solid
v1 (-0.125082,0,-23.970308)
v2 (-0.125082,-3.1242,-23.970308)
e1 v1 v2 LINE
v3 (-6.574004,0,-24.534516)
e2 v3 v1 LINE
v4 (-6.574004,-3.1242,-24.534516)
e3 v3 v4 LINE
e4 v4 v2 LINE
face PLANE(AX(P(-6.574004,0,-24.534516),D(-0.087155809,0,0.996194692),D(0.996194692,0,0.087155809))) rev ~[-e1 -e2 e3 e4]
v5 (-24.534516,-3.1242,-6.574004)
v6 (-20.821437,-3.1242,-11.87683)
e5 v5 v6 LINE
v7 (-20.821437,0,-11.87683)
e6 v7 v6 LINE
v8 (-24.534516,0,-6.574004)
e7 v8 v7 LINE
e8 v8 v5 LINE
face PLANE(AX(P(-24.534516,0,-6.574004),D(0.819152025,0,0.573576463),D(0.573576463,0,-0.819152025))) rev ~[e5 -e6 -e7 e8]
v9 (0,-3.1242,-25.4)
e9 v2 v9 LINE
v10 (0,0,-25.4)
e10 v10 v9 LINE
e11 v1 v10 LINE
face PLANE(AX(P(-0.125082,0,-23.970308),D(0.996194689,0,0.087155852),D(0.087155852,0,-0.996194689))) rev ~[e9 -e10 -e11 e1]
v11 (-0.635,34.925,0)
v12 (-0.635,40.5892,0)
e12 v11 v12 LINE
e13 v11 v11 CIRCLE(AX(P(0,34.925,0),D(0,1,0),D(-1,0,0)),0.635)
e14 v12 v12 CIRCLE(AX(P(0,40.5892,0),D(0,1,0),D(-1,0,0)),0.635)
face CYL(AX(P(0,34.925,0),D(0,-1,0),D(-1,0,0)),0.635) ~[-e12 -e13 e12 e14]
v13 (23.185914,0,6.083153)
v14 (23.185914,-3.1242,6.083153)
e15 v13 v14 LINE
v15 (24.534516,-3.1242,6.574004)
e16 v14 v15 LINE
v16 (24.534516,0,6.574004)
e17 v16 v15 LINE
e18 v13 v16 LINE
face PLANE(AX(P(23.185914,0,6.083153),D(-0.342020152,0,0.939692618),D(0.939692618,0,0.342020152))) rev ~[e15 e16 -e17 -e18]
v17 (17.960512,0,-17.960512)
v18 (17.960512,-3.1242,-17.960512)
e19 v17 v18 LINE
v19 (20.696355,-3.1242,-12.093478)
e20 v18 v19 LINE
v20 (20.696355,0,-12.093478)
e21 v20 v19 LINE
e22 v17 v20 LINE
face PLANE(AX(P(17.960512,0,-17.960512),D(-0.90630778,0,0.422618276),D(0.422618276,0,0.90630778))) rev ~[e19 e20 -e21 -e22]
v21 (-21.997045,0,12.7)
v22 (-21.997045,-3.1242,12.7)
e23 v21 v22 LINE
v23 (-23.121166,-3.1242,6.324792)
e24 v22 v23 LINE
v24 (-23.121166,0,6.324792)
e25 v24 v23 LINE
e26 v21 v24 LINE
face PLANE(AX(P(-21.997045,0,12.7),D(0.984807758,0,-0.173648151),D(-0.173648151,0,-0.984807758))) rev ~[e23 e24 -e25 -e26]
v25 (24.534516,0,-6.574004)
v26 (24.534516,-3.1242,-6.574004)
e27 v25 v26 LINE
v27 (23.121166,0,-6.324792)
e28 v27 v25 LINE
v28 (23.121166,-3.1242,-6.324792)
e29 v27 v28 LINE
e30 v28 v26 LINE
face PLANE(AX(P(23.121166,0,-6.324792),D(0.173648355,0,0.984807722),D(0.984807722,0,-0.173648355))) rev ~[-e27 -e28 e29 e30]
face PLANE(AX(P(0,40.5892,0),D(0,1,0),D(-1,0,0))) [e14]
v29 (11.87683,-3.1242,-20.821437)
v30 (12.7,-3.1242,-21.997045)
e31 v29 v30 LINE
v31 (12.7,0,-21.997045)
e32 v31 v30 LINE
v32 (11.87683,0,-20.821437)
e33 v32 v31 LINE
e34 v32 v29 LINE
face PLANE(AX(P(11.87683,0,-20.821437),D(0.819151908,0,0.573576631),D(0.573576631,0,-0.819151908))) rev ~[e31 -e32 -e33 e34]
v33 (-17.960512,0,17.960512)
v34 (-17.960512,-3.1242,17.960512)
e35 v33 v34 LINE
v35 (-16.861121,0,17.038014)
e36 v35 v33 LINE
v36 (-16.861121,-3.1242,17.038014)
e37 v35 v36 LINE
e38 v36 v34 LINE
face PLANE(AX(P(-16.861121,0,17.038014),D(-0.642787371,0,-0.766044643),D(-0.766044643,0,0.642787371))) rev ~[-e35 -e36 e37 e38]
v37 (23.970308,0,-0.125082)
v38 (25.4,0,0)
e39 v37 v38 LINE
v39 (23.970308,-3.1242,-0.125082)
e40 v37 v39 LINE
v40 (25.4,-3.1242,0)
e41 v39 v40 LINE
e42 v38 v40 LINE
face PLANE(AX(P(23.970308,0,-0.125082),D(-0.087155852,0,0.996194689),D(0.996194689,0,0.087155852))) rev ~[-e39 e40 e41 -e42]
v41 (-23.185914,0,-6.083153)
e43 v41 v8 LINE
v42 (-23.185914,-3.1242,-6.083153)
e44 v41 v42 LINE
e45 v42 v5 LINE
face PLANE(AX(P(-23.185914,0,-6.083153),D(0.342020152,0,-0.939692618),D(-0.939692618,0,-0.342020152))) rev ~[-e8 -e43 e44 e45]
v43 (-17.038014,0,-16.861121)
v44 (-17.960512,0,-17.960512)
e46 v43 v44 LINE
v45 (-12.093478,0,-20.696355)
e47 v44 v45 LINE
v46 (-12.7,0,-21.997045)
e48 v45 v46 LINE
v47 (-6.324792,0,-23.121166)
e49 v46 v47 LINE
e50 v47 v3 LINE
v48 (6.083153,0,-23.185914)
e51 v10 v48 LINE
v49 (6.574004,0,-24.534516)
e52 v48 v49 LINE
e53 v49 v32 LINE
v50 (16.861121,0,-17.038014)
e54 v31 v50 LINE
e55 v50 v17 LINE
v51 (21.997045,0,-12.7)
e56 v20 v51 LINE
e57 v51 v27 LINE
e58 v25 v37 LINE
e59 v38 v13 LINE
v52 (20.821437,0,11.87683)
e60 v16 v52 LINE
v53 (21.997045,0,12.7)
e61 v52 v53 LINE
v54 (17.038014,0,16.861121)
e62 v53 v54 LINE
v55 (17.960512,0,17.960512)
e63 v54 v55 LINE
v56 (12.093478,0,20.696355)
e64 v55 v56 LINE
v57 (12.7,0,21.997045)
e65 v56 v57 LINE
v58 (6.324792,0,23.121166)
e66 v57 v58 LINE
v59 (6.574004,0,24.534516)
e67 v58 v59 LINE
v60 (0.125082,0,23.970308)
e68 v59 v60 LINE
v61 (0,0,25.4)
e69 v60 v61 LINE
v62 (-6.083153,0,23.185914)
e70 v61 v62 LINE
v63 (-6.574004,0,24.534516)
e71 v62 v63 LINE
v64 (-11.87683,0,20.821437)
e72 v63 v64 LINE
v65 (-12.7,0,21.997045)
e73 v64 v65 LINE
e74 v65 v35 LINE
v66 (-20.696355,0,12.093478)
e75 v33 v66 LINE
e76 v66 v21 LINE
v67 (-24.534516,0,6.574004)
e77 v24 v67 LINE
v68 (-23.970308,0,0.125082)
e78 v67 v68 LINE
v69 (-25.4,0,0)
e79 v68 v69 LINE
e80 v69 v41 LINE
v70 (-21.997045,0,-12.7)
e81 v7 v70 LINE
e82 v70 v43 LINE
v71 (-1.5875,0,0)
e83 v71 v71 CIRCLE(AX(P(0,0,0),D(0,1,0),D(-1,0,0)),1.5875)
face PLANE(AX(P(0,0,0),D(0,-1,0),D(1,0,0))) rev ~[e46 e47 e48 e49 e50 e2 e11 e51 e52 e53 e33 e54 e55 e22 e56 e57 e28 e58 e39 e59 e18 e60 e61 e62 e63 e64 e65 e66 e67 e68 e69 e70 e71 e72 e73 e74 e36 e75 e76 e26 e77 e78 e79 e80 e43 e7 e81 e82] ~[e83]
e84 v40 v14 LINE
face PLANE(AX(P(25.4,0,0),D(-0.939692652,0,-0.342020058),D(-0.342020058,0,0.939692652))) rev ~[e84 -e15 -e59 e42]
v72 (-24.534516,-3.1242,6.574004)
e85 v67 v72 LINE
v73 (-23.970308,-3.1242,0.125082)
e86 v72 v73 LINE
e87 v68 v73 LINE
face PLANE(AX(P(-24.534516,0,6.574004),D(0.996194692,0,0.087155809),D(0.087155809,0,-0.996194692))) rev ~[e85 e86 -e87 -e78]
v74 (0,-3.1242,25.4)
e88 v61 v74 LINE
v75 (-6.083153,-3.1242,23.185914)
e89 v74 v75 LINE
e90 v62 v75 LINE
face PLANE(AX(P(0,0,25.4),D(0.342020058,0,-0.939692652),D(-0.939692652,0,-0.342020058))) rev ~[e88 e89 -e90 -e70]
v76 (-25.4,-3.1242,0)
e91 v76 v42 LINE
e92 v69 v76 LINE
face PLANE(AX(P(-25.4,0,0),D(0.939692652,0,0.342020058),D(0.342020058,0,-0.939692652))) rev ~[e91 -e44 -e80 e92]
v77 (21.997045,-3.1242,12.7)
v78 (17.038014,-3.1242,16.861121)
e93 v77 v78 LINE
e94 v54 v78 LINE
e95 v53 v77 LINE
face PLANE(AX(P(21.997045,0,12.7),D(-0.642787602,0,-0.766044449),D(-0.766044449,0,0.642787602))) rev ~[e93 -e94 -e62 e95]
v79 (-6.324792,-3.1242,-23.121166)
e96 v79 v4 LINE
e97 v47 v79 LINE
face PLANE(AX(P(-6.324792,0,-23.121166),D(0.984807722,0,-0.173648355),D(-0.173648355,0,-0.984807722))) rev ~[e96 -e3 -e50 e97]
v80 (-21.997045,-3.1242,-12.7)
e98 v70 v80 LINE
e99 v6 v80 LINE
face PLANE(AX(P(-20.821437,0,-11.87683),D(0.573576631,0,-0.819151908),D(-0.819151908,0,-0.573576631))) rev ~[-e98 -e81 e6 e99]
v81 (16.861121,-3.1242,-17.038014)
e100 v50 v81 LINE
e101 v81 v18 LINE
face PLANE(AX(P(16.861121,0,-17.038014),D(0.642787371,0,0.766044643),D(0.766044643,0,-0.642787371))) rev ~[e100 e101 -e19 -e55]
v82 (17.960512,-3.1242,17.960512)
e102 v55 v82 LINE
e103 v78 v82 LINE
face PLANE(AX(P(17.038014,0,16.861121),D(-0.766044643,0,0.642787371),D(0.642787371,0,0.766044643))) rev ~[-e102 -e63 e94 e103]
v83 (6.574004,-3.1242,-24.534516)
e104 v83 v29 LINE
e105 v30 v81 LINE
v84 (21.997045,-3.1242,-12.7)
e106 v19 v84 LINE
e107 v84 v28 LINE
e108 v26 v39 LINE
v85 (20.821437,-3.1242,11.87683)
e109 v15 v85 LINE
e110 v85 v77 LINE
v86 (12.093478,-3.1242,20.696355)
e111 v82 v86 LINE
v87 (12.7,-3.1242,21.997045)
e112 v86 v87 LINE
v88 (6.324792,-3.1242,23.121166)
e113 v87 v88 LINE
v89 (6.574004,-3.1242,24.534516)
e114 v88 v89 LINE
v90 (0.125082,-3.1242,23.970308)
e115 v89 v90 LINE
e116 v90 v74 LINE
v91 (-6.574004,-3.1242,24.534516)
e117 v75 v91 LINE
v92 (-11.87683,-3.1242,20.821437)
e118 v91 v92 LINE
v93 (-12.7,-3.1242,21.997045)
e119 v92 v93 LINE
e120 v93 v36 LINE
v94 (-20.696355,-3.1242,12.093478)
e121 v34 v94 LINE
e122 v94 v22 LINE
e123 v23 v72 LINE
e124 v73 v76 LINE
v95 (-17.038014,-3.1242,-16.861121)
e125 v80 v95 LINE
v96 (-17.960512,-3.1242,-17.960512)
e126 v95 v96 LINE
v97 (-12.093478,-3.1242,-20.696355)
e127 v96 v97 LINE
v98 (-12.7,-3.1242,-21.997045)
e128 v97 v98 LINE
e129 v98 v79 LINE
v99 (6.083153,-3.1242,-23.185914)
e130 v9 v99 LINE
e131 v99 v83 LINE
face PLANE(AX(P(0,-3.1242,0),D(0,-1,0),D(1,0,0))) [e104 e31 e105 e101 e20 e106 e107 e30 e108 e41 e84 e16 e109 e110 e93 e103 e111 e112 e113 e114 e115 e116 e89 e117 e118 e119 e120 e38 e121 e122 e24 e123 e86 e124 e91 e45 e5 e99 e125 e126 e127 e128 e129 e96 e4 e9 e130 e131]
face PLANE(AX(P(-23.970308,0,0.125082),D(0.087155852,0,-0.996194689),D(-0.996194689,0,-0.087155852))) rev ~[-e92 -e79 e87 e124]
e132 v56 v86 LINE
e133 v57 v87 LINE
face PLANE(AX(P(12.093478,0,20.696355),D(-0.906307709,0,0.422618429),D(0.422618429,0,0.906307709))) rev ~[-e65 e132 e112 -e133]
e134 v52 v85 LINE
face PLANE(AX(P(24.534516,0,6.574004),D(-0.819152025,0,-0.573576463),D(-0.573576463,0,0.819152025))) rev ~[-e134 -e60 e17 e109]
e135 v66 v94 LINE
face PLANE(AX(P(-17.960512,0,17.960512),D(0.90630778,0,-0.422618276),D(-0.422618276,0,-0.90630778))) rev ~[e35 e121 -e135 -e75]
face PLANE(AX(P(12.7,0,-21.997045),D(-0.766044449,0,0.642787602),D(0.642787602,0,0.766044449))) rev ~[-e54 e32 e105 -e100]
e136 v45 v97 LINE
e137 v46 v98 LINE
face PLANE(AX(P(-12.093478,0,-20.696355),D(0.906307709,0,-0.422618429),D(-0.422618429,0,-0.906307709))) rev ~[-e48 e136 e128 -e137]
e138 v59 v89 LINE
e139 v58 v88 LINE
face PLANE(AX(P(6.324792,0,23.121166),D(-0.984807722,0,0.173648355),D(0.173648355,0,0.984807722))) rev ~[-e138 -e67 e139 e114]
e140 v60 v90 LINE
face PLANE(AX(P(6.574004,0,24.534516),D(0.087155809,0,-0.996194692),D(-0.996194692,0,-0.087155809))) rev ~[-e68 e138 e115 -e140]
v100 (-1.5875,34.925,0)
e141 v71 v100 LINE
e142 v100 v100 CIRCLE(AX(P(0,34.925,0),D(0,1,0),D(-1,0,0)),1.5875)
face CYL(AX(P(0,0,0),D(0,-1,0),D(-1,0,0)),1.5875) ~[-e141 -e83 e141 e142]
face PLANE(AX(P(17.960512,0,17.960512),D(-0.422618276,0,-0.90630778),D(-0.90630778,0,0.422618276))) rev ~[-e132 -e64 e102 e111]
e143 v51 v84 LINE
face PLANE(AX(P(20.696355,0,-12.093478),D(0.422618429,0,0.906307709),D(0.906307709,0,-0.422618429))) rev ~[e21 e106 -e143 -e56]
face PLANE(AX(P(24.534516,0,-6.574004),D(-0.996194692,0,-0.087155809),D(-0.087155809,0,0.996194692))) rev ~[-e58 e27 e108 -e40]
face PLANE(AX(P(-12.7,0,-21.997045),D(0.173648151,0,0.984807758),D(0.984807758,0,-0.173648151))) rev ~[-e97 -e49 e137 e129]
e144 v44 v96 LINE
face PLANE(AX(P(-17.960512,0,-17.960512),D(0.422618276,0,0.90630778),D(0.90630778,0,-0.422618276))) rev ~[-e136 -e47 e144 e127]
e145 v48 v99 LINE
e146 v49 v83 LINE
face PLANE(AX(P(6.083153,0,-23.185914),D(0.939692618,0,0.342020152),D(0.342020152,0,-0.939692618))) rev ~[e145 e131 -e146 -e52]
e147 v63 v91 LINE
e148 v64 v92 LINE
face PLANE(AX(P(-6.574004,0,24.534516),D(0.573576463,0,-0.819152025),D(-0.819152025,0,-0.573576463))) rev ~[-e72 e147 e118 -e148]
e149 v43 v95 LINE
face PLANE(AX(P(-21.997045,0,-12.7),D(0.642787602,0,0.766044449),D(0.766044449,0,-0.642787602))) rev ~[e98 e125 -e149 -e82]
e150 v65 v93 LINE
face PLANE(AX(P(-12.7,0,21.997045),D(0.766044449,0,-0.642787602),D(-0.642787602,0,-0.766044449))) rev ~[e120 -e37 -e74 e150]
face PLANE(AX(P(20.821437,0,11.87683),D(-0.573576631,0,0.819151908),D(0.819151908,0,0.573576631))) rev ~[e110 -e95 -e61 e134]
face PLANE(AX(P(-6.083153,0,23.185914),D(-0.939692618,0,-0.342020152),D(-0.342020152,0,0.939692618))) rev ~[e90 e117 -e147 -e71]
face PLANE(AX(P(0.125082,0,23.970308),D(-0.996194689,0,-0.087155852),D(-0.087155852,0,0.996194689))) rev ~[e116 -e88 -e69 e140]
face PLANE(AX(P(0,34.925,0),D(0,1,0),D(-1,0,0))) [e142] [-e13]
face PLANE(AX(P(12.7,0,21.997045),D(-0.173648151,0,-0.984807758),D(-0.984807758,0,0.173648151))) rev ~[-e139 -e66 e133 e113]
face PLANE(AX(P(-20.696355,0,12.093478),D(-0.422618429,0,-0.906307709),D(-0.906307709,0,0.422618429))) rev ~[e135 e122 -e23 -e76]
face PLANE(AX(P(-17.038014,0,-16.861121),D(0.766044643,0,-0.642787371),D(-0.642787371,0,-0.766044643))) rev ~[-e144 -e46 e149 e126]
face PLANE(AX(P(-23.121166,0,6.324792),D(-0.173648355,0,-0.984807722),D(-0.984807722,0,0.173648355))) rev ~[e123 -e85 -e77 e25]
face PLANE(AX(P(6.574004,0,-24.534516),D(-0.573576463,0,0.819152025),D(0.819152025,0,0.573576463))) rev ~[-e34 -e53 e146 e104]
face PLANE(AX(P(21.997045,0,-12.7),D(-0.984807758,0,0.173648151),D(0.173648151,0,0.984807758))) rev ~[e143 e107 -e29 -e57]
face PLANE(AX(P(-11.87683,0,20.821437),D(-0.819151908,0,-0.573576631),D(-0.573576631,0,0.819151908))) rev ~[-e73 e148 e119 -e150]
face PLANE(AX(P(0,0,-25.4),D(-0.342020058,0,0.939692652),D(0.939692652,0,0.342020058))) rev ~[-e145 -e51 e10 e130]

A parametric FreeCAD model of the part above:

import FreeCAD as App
import Part
import Sketcher
Q = App.Units.Quantity


def add_polygon(sketch, points):
    """Adds a closed chain of lines whose ends are joined by coincident constraints."""
    first, n = sketch.GeometryCount, len(points)
    for a, b in zip(points, points[1:] + points[:1]):
        sketch.addGeometry(Part.LineSegment(App.Vector(*a, 0), App.Vector(*b, 0)), False)
    for i in range(n):
        sketch.addConstraint(Sketcher.Constraint("Coincident", first + i, 2, first + (i + 1) % n, 1))

doc = App.newDocument("Part")
body = doc.addObject("PartDesign::Body", "Body")

# Sketch on XZ plane
sketch1 = doc.addObject("Sketcher::SketchObject", "Sketch")
body.addObject(sketch1)
sketch1.AttachmentSupport = (doc.XZ_Plane, [""])
sketch1.MapMode = "FlatFace"
add_polygon(sketch1, [(0.1, 24), (0, 25.4), (-6.1, 23.2), (-6.6, 24.5), (-11.9, 20.8), (-12.7, 22), (-16.9, 17), (-18, 18), (-20.7, 12.1), (-22, 12.7), (-23.1, 6.3), (-24.5, 6.6), (-24, 0.1), (-25.4, 0), (-23.2, -6.1), (-24.5, -6.6), (-20.8, -11.9), (-22, -12.7), (-17, -16.9), (-18, -18), (-12.1, -20.7), (-12.7, -22), (-6.3, -23.1), (-6.6, -24.5), (-0.1, -24), (0, -25.4), (6.1, -23.2), (6.6, -24.5), (11.9, -20.8), (12.7, -22), (16.9, -17), (18, -18), (20.7, -12.1), (22, -12.7), (23.1, -6.3), (24.5, -6.6), (24, -0.1), (25.4, 0), (23.2, 6.1), (24.5, 6.6), (20.8, 11.9), (22, 12.7), (17, 16.9), (18, 18), (12.1, 20.7), (12.7, 22), (6.3, 23.1), (6.6, 24.5)])  # lines 0-47
sketch1.addConstraint(Sketcher.Constraint("Symmetric", 0, 2, 24, 2, -1, 1))
sketch1.addConstraint(Sketcher.Constraint("Symmetric", 1, 2, 25, 2, -1, 1))
sketch1.addConstraint(Sketcher.Constraint("Symmetric", 2, 2, 26, 2, -1, 1))
sketch1.addConstraint(Sketcher.Constraint("Symmetric", 3, 2, 27, 2, -1, 1))
sketch1.addConstraint(Sketcher.Constraint("Symmetric", 4, 2, 28, 2, -1, 1))
sketch1.addConstraint(Sketcher.Constraint("Symmetric", 5, 2, 29, 2, -1, 1))
sketch1.addConstraint(Sketcher.Constraint("Symmetric", 6, 2, 30, 2, -1, 1))
sketch1.addConstraint(Sketcher.Constraint("Symmetric", 7, 2, 31, 2, -1, 1))
sketch1.addConstraint(Sketcher.Constraint("Symmetric", 8, 2, 32, 2, -1, 1))
sketch1.addConstraint(Sketcher.Constraint("Symmetric", 9, 2, 33, 2, -1, 1))
sketch1.addConstraint(Sketcher.Constraint("Symmetric", 10, 2, 34, 2, -1, 1))
sketch1.addConstraint(Sketcher.Constraint("Symmetric", 11, 2, 35, 2, -1, 1))
sketch1.addConstraint(Sketcher.Constraint("Symmetric", 12, 2, 36, 2, -1, 1))
sketch1.addConstraint(Sketcher.Constraint("Symmetric", 13, 2, 37, 2, -1, 1))
sketch1.addConstraint(Sketcher.Constraint("Symmetric", 14, 2, 38, 2, -1, 1))
sketch1.addConstraint(Sketcher.Constraint("Symmetric", 15, 2, 39, 2, -1, 1))
sketch1.addConstraint(Sketcher.Constraint("Symmetric", 16, 2, 40, 2, -1, 1))
sketch1.addConstraint(Sketcher.Constraint("Symmetric", 17, 2, 41, 2, -1, 1))
sketch1.addConstraint(Sketcher.Constraint("Symmetric", 18, 2, 42, 2, -1, 1))
sketch1.addConstraint(Sketcher.Constraint("Symmetric", 19, 2, 43, 2, -1, 1))
sketch1.addConstraint(Sketcher.Constraint("Symmetric", 20, 2, 44, 2, -1, 1))
sketch1.addConstraint(Sketcher.Constraint("Symmetric", 21, 2, 45, 2, -1, 1))
sketch1.addConstraint(Sketcher.Constraint("Symmetric", 22, 2, 46, 2, -1, 1))
sketch1.addConstraint(Sketcher.Constraint("Symmetric", 23, 2, 47, 2, -1, 1))
sketch1.addConstraint(Sketcher.Constraint("Symmetric", 22, 2, 26, 2, -2))
sketch1.addConstraint(Sketcher.Constraint("Symmetric", 20, 2, 28, 2, -2))
sketch1.addConstraint(Sketcher.Constraint("Symmetric", 18, 2, 30, 2, -2))
sketch1.addConstraint(Sketcher.Constraint("Symmetric", 16, 2, 32, 2, -2))
sketch1.addConstraint(Sketcher.Constraint("Symmetric", 14, 2, 34, 2, -2))
sketch1.addConstraint(Sketcher.Constraint("PointOnObject", 0, 2, -2))
sketch1.addConstraint(Sketcher.Constraint("PointOnObject", 12, 2, -1))
sketch1.addConstraint(Sketcher.Constraint("Perpendicular", 1, 2))
sketch1.addConstraint(Sketcher.Constraint("Perpendicular", 3, 4))
sketch1.addConstraint(Sketcher.Constraint("Perpendicular", 5, 6))
sketch1.addConstraint(Sketcher.Constraint("Perpendicular", 7, 8))
sketch1.addConstraint(Sketcher.Constraint("Perpendicular", 9, 10))
sketch1.addConstraint(Sketcher.Constraint("Parallel", 0, 11))
sketch1.addConstraint(Sketcher.Constraint("Perpendicular", 11, 12))
sketch1.addConstraint(Sketcher.Constraint("Parallel", 2, 13))
sketch1.addConstraint(Sketcher.Constraint("Perpendicular", 13, 14))
sketch1.addConstraint(Sketcher.Constraint("Parallel", 4, 15))
sketch1.addConstraint(Sketcher.Constraint("Perpendicular", 15, 16))
sketch1.addConstraint(Sketcher.Constraint("Parallel", 6, 17))
sketch1.addConstraint(Sketcher.Constraint("Perpendicular", 17, 18))
sketch1.addConstraint(Sketcher.Constraint("Parallel", 8, 19))
sketch1.addConstraint(Sketcher.Constraint("Perpendicular", 19, 20))
sketch1.addConstraint(Sketcher.Constraint("Parallel", 10, 21))
sketch1.addConstraint(Sketcher.Constraint("Perpendicular", 21, 22))
sketch1.addConstraint(Sketcher.Constraint("Parallel", 12, 23))
sketch1.addConstraint(Sketcher.Constraint("Equal", 0, 2))
sketch1.addConstraint(Sketcher.Constraint("Equal", 1, 3))
sketch1.addConstraint(Sketcher.Constraint("Equal", 2, 4))
sketch1.addConstraint(Sketcher.Constraint("Equal", 3, 5))
sketch1.addConstraint(Sketcher.Constraint("Equal", 4, 6))
sketch1.addConstraint(Sketcher.Constraint("Equal", 5, 7))
sketch1.addConstraint(Sketcher.Constraint("Equal", 6, 8))
sketch1.addConstraint(Sketcher.Constraint("Equal", 7, 9))
sketch1.addConstraint(Sketcher.Constraint("Equal", 8, 10))
sketch1.addConstraint(Sketcher.Constraint("Equal", 9, 11))
sketch1.addConstraint(Sketcher.Constraint("Equal", 10, 12))
sketch1.addConstraint(Sketcher.Constraint("Equal", 13, 15))
sketch1.addConstraint(Sketcher.Constraint("Equal", 15, 17))
sketch1.addConstraint(Sketcher.Constraint("DistanceY", -1, 1, 0, 2, Q("1 in")))
sketch1.addConstraint(Sketcher.Constraint("Angle", 0, Q("95.000006 deg")))
sketch1.addConstraint(Sketcher.Constraint("Angle", 1, Q("-160.000005 deg")))
sketch1.addConstraint(Sketcher.Constraint("Angle", 3, Q("-144.999998 deg")))
sketch1.addConstraint(Sketcher.Constraint("Angle", 5, Q("-129.999999 deg")))
pad1 = doc.addObject("PartDesign::Pad", "Pad")
body.addObject(pad1)
pad1.Profile = sketch1
pad1.Length = Q("0.123 in")

# Sketch on XZ plane
sketch2 = doc.addObject("Sketcher::SketchObject", "Sketch001")
body.addObject(sketch2)
sketch2.AttachmentSupport = (doc.XZ_Plane, [""])
sketch2.MapMode = "FlatFace"
sketch2.addGeometry(Part.Circle(App.Vector(0, 0, 0), App.Vector(0, 0, 1), 1.6), False)
sketch2.addConstraint(Sketcher.Constraint("Coincident", 0, 3, -1, 1))
sketch2.addConstraint(Sketcher.Constraint("Diameter", 0, Q("0.125 in")))
pad2 = doc.addObject("PartDesign::Pad", "Pad001")
body.addObject(pad2)
pad2.Profile = sketch2
pad2.Length = Q("1.375 in")
pad2.Reversed = True

# Sketch on XZ plane
sketch3 = doc.addObject("Sketcher::SketchObject", "Sketch002")
body.addObject(sketch3)
sketch3.AttachmentSupport = (doc.XZ_Plane, [""])
sketch3.MapMode = "FlatFace"
sketch3.AttachmentOffset = App.Placement(App.Vector(0, 0, -1.375 * 25.4), App.Rotation())
sketch3.addGeometry(Part.Circle(App.Vector(0, 0, 0), App.Vector(0, 0, 1), 0.6), False)
sketch3.addConstraint(Sketcher.Constraint("Coincident", 0, 3, -1, 1))
sketch3.addConstraint(Sketcher.Constraint("Diameter", 0, Q("0.05 in")))
pad3 = doc.addObject("PartDesign::Pad", "Pad002")
body.addObject(pad3)
pad3.Profile = sketch3
pad3.Length = Q("0.223 in")
pad3.Reversed = True

doc.recompute()
